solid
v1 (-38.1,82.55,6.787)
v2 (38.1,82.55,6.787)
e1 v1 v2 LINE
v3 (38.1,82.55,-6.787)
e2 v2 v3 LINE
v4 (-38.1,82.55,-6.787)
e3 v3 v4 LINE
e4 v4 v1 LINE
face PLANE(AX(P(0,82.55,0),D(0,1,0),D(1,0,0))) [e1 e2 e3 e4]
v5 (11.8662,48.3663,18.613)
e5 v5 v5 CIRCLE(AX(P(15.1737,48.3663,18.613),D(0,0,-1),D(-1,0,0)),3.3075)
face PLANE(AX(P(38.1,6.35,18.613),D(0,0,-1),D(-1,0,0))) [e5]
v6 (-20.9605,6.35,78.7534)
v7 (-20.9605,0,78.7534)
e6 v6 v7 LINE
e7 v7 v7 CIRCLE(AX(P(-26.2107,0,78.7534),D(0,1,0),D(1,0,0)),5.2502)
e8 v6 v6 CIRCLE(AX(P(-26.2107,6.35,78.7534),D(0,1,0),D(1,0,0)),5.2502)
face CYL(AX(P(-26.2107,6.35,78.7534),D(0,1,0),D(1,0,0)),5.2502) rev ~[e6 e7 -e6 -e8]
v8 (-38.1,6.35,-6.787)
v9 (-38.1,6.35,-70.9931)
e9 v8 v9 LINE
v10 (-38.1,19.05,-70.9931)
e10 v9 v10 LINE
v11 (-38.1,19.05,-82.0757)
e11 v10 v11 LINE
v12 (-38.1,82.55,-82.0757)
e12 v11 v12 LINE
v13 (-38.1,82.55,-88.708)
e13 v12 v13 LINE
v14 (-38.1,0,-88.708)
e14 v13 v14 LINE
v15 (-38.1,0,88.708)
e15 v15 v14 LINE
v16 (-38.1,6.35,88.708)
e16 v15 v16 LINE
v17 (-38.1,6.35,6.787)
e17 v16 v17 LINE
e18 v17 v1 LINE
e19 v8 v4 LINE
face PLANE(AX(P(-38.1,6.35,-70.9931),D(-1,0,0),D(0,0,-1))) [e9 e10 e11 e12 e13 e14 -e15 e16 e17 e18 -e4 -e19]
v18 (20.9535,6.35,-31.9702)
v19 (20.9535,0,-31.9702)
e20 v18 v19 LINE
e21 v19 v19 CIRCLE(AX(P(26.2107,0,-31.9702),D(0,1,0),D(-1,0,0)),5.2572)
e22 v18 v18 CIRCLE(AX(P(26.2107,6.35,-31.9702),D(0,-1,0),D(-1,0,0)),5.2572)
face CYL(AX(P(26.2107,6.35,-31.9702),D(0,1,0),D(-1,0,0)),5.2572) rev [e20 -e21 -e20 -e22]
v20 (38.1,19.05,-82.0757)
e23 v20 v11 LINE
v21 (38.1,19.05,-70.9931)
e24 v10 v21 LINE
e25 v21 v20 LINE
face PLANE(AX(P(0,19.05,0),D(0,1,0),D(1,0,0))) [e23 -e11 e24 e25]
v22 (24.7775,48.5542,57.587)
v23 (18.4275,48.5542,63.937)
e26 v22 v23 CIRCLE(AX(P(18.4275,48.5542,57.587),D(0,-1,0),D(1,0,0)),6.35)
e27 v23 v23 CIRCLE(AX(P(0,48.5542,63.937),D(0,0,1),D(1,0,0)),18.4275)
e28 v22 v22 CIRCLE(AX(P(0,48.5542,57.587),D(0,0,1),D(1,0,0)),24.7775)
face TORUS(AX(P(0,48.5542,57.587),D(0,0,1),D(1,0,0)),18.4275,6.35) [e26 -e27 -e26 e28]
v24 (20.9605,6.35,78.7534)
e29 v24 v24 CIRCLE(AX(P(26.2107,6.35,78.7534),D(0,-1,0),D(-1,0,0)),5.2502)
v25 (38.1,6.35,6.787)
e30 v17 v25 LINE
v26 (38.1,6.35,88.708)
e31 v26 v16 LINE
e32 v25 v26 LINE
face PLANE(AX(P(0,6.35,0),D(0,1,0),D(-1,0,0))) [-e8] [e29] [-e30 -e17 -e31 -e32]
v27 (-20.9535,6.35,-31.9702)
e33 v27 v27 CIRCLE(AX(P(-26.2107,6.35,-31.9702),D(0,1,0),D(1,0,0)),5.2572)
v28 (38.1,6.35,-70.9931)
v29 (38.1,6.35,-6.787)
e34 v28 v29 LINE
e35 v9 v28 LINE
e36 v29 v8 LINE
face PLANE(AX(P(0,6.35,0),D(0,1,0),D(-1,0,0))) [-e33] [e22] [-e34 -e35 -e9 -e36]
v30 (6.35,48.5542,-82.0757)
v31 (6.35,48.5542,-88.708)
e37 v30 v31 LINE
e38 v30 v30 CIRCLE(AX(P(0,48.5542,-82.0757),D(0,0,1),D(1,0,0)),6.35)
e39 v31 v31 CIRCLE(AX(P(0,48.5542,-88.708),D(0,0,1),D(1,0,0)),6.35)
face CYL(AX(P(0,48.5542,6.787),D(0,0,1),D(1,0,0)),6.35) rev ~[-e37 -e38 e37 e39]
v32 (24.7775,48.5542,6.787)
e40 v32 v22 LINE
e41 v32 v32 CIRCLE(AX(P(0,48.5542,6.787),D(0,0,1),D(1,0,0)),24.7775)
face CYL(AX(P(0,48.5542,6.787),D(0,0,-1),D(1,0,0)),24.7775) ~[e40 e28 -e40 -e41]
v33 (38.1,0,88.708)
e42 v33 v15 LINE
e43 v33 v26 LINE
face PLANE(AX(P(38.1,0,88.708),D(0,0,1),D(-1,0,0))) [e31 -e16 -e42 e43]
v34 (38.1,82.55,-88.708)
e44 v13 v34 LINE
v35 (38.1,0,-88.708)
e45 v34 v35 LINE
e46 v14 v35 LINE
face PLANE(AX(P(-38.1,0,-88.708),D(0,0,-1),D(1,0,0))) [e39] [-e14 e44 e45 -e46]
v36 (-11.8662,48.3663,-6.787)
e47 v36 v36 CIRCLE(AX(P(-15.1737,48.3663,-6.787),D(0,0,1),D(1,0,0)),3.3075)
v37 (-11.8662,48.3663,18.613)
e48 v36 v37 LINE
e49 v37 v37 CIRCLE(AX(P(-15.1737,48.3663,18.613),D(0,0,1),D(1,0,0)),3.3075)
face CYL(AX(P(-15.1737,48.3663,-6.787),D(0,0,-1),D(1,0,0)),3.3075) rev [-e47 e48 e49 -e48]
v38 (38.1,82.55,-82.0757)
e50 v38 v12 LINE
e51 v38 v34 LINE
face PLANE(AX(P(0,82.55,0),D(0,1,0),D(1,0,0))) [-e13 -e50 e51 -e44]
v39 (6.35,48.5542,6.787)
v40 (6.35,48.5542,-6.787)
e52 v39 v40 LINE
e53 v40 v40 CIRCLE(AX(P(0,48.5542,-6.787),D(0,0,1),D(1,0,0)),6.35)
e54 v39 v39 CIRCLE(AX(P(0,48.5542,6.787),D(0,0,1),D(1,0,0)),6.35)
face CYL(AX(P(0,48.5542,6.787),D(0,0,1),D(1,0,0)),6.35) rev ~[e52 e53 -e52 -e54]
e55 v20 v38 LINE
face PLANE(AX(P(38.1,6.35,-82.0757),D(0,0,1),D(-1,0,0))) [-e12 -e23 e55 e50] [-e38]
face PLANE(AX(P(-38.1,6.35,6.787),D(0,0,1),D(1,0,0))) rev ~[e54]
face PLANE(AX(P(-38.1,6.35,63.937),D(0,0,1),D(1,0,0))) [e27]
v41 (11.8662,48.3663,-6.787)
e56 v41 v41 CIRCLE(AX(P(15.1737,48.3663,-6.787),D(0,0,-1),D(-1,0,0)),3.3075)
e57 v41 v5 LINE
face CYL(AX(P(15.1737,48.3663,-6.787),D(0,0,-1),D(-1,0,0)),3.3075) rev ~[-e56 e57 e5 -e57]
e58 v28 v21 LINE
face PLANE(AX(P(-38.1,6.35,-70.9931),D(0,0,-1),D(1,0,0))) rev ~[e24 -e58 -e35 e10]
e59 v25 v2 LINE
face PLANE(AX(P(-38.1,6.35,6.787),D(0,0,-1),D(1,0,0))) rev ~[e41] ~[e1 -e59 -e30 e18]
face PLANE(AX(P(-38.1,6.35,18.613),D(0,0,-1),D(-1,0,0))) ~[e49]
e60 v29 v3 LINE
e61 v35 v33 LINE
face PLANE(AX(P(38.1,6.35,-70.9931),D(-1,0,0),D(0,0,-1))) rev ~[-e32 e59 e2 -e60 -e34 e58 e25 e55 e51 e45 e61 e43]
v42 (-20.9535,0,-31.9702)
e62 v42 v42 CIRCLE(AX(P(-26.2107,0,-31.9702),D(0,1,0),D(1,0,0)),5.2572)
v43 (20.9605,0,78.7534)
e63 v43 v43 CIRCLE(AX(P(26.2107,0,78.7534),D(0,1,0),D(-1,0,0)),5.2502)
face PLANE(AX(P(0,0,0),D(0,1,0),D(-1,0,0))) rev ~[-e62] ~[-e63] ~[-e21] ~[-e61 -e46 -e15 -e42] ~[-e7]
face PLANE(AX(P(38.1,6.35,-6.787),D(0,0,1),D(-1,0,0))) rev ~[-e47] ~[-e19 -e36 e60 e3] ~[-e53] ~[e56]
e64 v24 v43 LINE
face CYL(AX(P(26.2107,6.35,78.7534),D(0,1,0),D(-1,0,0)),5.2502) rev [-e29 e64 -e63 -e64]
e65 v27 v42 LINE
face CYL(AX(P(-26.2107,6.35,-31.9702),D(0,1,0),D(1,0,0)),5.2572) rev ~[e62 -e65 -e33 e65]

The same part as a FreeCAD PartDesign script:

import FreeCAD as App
import Part
import Sketcher
Q = App.Units.Quantity


def edges_at(feature, points):
    """Names of the edges that pass closest to the given points."""
    edges = feature.Shape.Edges
    near = lambda p: min(range(len(edges)), key=lambda i: edges[i].distToShape(Part.Vertex(*p))[0])
    return sorted({f"Edge{near(p) + 1}" for p in points})


def add_polygon(sketch, points):
    """Adds a closed chain of lines whose ends are joined by coincident constraints."""
    first, n = sketch.GeometryCount, len(points)
    for a, b in zip(points, points[1:] + points[:1]):
        sketch.addGeometry(Part.LineSegment(App.Vector(*a, 0), App.Vector(*b, 0)), False)
    for i in range(n):
        sketch.addConstraint(Sketcher.Constraint("Coincident", first + i, 2, first + (i + 1) % n, 1))

doc = App.newDocument("Part")
body = doc.addObject("PartDesign::Body", "Body")

sketch1 = doc.addObject("Sketcher::SketchObject", "Sketch")
body.addObject(sketch1)
sketch1.AttachmentSupport = (doc.XZ_Plane, [""])
sketch1.MapMode = "FlatFace"
add_polygon(sketch1, [(-38, 89), (38, 89), (38, -89), (-38, -89)])
sketch1.addConstraint([
    Sketcher.Constraint("Horizontal", 0),
    Sketcher.Constraint("Vertical", 1),
    Sketcher.Constraint("Horizontal", 2),
    Sketcher.Constraint("Vertical", 3),
    Sketcher.Constraint("Symmetric", 0, 2, 2, 2, -1, 1),
    Sketcher.Constraint("DistanceX", 0, 1, 0, 2, Q("3 in")),
    Sketcher.Constraint("DistanceY", 1, 2, 1, 1, 177.416),
])
pad1 = doc.addObject("PartDesign::Pad", "Pad")
body.addObject(pad1)
pad1.Profile = sketch1
pad1.Length = Q("0.25 in")
pad1.Reversed = True

sketch2 = doc.addObject("Sketcher::SketchObject", "Sketch001")
body.addObject(sketch2)
sketch2.AttachmentSupport = (doc.XZ_Plane, [""])
sketch2.MapMode = "FlatFace"
sketch2.AttachmentOffset = App.Placement(App.Vector(0, 0, -0.25 * 25.4), App.Rotation())
add_polygon(sketch2, [(-38, 7), (38, 7), (38, -7), (-38, -7)])
add_polygon(sketch2, [(-38, -82), (38, -82), (38, -89), (-38, -89)])
sketch2.addConstraint([
    Sketcher.Constraint("Horizontal", 0),
    Sketcher.Constraint("Vertical", 1),
    Sketcher.Constraint("Horizontal", 2),
    Sketcher.Constraint("Vertical", 3),
    Sketcher.Constraint("Horizontal", 4),
    Sketcher.Constraint("Vertical", 5),
    Sketcher.Constraint("Horizontal", 6),
    Sketcher.Constraint("Vertical", 7),
    Sketcher.Constraint("Symmetric", 0, 2, 2, 2, -1, 1),
    Sketcher.Constraint("Vertical", 1, 2, 4, 2),
    Sketcher.Constraint("Vertical", 3, 2, 6, 2),
    Sketcher.Constraint("DistanceX", 0, 1, 0, 2, Q("3 in")),
    Sketcher.Constraint("DistanceY", 1, 2, 1, 1, Q("0.5344 in")),
    Sketcher.Constraint("DistanceY", 5, 2, 5, 1, 6.6323),
    Sketcher.Constraint("DistanceY", 4, 2, -1, 1, 82.0757),
])
pad2 = doc.addObject("PartDesign::Pad", "Pad001")
body.addObject(pad2)
pad2.Profile = sketch2
pad2.Length = Q("3 in")
pad2.Reversed = True

sketch3 = doc.addObject("Sketcher::SketchObject", "Sketch002")
body.addObject(sketch3)
sketch3.AttachmentSupport = (doc.XZ_Plane, [""])
sketch3.MapMode = "FlatFace"
sketch3.AttachmentOffset = App.Placement(App.Vector(0, 0, -0.25 * 25.4), App.Rotation())
add_polygon(sketch3, [(-38, -89), (-38, -71), (38, -71), (38, -89)])
sketch3.addConstraint([
    Sketcher.Constraint("Vertical", 0),
    Sketcher.Constraint("Horizontal", 1),
    Sketcher.Constraint("Vertical", 2),
    Sketcher.Constraint("Horizontal", 3),
    Sketcher.Constraint("DistanceX", 1, 1, 1, 2, Q("3 in")),
    Sketcher.Constraint("DistanceX", 0, 2, -1, 1, Q("1.5 in")),
    Sketcher.Constraint("DistanceY", 0, 2, -1, 1, Q("2.795 in")),
    Sketcher.Constraint("DistanceY", 0, 1, 0, 2, 17.715),
])
pad3 = doc.addObject("PartDesign::Pad", "Pad002")
body.addObject(pad3)
pad3.Profile = sketch3
pad3.Length = Q("0.5 in")
pad3.Reversed = True

sketch4 = doc.addObject("Sketcher::SketchObject", "Sketch003")
body.addObject(sketch4)
sketch4.AttachmentSupport = (doc.XY_Plane, [""])
sketch4.MapMode = "FlatFace"
sketch4.AttachmentOffset = App.Placement(App.Vector(0, 0, 0.2672047 * 25.4), App.Rotation())
sketch4.addGeometry(Part.Circle(App.Vector(0, 49, 0), App.Vector(0, 0, 1), 6), False)
sketch4.addConstraint([
    Sketcher.Constraint("PointOnObject", 0, 3, -2),
    Sketcher.Constraint("Diameter", 0, Q("0.5 in")),
    Sketcher.Constraint("DistanceY", -1, 1, 0, 3, 48.5542),
])
pocket1 = doc.addObject("PartDesign::Pocket", "Pocket")
body.addObject(pocket1)
pocket1.Profile = sketch4
pocket1.Length = Q("3.9375 in")

sketch5 = doc.addObject("Sketcher::SketchObject", "Sketch004")
body.addObject(sketch5)
sketch5.AttachmentSupport = (doc.XY_Plane, [""])
sketch5.MapMode = "FlatFace"
sketch5.AttachmentOffset = App.Placement(App.Vector(0, 0, 0.2672047 * 25.4), App.Rotation())
sketch5.addGeometry(Part.Circle(App.Vector(0, 49, 0), App.Vector(0, 0, 1), 25), False)
sketch5.addConstraint([
    Sketcher.Constraint("PointOnObject", 0, 3, -2),
    Sketcher.Constraint("Diameter", 0, 49.555),
    Sketcher.Constraint("DistanceY", -1, 1, 0, 3, 48.5542),
])
pad4 = doc.addObject("PartDesign::Pad", "Pad003")
body.addObject(pad4)
pad4.Profile = sketch5
pad4.Length = Q("2.25 in")
doc.recompute()

fillet = doc.addObject("PartDesign::Fillet", "Fillet")
body.addObject(fillet)
fillet.Base = (pad4, edges_at(pad4, [(-24.777, 48.554, 63.937)]))
fillet.Radius = Q("0.25 in")

sketch6 = doc.addObject("Sketcher::SketchObject", "Sketch005")
body.addObject(sketch6)
sketch6.AttachmentSupport = (doc.XZ_Plane, [""])
sketch6.MapMode = "FlatFace"
sketch6.AttachmentOffset = App.Placement(App.Vector(0, 0, -0.25 * 25.4), App.Rotation())
sketch6.addGeometry([
    Part.Circle(App.Vector(-26, 79, 0), App.Vector(0, 0, 1), 5),
    Part.Circle(App.Vector(-26, -32, 0), App.Vector(0, 0, 1), 5),
], False)
sketch6.addConstraint([
    Sketcher.Constraint("Vertical", 0, 3, 1, 3),
    Sketcher.Constraint("Diameter", 0, Q("0.4134 in")),
    Sketcher.Constraint("Diameter", 1, 10.5144),
    Sketcher.Constraint("DistanceY", 1, 3, 0, 3, Q("4.3592 in")),
    Sketcher.Constraint("DistanceX", 0, 3, -1, 1, 26.2107),
    Sketcher.Constraint("DistanceY", -1, 1, 0, 3, 78.7534),
])
pocket2 = doc.addObject("PartDesign::Pocket", "Pocket001")
body.addObject(pocket2)
pocket2.Profile = sketch6
pocket2.Length = Q("1 in")
pocket2.Reversed = True
doc.recompute()

mirrored = doc.addObject("PartDesign::Mirrored", "Mirrored")
body.addObject(mirrored)
mirrored.Originals = [pocket2]
mirrored.MirrorPlane = (doc.YZ_Plane, [""])
body.Tip = mirrored

sketch7 = doc.addObject("Sketcher::SketchObject", "Sketch006")
body.addObject(sketch7)
sketch7.AttachmentSupport = (doc.XY_Plane, [""])
sketch7.MapMode = "FlatFace"
sketch7.AttachmentOffset = App.Placement(App.Vector(0, 0, -0.2672047 * 25.4), App.Rotation())
sketch7.addGeometry(Part.Circle(App.Vector(15.2, 48.4, 0), App.Vector(0, 0, 1), 3.3), False)
sketch7.addConstraint([
    Sketcher.Constraint("Diameter", 0, 6.615),
    Sketcher.Constraint("DistanceX", -1, 1, 0, 3, Q("0.5974 in")),
    Sketcher.Constraint("DistanceY", -1, 1, 0, 3, 48.3663),
])
pocket3 = doc.addObject("PartDesign::Pocket", "Pocket002")
body.addObject(pocket3)
pocket3.Profile = sketch7
pocket3.Length = Q("1 in")
pocket3.Reversed = True
doc.recompute()

mirrored2 = doc.addObject("PartDesign::Mirrored", "Mirrored001")
body.addObject(mirrored2)
mirrored2.Originals = [pocket3]
mirrored2.MirrorPlane = (doc.YZ_Plane, [""])
body.Tip = mirrored2

doc.recompute()
